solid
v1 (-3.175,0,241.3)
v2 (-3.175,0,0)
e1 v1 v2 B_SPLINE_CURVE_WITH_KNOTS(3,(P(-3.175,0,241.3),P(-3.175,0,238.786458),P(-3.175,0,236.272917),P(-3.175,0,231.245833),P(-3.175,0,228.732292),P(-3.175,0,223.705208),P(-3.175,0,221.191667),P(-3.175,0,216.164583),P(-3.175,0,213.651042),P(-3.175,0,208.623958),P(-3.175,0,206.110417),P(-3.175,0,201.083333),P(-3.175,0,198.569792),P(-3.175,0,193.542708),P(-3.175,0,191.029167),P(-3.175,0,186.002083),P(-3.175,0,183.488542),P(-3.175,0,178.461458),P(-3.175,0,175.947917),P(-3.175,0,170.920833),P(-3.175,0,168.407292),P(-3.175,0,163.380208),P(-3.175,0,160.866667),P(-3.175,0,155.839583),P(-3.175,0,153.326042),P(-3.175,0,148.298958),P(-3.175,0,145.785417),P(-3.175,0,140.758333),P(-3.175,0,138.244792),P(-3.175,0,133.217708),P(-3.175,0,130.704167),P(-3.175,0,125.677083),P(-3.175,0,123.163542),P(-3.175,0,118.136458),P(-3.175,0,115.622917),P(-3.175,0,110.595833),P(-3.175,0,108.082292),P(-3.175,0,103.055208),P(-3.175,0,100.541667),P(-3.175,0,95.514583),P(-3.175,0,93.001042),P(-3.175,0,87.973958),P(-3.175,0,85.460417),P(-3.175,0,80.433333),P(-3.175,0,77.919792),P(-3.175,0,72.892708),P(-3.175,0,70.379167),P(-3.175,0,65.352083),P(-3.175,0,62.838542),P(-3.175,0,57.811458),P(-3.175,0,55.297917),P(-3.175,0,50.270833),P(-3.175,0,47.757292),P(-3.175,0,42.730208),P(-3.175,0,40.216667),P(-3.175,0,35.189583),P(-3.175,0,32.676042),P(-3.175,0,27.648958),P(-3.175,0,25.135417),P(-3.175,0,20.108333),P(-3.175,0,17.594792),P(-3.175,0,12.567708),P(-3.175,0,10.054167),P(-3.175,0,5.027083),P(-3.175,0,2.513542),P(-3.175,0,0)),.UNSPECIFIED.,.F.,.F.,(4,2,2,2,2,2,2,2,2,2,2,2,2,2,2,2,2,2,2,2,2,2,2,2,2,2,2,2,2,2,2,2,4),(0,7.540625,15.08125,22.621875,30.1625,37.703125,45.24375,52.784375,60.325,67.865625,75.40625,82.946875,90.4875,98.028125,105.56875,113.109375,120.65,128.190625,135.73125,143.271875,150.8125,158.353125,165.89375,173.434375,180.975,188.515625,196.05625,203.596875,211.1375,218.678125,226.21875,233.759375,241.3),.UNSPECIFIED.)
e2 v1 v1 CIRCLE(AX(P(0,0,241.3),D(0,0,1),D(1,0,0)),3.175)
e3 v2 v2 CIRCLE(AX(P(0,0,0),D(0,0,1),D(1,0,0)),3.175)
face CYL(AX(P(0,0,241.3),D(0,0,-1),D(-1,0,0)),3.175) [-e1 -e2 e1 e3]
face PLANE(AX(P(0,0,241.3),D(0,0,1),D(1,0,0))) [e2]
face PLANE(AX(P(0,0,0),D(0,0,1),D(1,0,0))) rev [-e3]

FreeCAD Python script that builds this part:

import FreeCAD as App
import Part
import Sketcher
Q = App.Units.Quantity

doc = App.newDocument("Part")
params = doc.addObject("Spreadsheet::Sheet", "Params")
for row, (alias, value) in enumerate([
    ("sketch1_diameter", "0.25 in"),
    ("pad1_length", "9.5 in"),
], start=1):
    params.set(f"A{row}", alias)
    params.set(f"B{row}", "=" + value)
    params.setAlias(f"B{row}", alias)

body = doc.addObject("PartDesign::Body", "Body")

# Sketch on XY plane
sketch1 = body.newObject("Sketcher::SketchObject", "Sketch")
sketch1.AttachmentSupport = (doc.getObject("XY_Plane"), [""])
sketch1.MapMode = "FlatFace"
sketch1.addGeometry(Part.Circle(App.Vector(0, 0, 0), App.Vector(0, 0, 1), 3.2), False)
sketch1.addConstraint([
    Sketcher.Constraint("Coincident", 0, 3, -1, 1),
    Sketcher.Constraint("Diameter", 0, Q("0.25 in")),
])
sketch1.setExpression("Constraints[1]", "Params.sketch1_diameter")
pad1 = body.newObject("PartDesign::Pad", "Pad")
pad1.Profile = sketch1
pad1.setExpression("Length", "Params.pad1_length")

doc.recompute()
